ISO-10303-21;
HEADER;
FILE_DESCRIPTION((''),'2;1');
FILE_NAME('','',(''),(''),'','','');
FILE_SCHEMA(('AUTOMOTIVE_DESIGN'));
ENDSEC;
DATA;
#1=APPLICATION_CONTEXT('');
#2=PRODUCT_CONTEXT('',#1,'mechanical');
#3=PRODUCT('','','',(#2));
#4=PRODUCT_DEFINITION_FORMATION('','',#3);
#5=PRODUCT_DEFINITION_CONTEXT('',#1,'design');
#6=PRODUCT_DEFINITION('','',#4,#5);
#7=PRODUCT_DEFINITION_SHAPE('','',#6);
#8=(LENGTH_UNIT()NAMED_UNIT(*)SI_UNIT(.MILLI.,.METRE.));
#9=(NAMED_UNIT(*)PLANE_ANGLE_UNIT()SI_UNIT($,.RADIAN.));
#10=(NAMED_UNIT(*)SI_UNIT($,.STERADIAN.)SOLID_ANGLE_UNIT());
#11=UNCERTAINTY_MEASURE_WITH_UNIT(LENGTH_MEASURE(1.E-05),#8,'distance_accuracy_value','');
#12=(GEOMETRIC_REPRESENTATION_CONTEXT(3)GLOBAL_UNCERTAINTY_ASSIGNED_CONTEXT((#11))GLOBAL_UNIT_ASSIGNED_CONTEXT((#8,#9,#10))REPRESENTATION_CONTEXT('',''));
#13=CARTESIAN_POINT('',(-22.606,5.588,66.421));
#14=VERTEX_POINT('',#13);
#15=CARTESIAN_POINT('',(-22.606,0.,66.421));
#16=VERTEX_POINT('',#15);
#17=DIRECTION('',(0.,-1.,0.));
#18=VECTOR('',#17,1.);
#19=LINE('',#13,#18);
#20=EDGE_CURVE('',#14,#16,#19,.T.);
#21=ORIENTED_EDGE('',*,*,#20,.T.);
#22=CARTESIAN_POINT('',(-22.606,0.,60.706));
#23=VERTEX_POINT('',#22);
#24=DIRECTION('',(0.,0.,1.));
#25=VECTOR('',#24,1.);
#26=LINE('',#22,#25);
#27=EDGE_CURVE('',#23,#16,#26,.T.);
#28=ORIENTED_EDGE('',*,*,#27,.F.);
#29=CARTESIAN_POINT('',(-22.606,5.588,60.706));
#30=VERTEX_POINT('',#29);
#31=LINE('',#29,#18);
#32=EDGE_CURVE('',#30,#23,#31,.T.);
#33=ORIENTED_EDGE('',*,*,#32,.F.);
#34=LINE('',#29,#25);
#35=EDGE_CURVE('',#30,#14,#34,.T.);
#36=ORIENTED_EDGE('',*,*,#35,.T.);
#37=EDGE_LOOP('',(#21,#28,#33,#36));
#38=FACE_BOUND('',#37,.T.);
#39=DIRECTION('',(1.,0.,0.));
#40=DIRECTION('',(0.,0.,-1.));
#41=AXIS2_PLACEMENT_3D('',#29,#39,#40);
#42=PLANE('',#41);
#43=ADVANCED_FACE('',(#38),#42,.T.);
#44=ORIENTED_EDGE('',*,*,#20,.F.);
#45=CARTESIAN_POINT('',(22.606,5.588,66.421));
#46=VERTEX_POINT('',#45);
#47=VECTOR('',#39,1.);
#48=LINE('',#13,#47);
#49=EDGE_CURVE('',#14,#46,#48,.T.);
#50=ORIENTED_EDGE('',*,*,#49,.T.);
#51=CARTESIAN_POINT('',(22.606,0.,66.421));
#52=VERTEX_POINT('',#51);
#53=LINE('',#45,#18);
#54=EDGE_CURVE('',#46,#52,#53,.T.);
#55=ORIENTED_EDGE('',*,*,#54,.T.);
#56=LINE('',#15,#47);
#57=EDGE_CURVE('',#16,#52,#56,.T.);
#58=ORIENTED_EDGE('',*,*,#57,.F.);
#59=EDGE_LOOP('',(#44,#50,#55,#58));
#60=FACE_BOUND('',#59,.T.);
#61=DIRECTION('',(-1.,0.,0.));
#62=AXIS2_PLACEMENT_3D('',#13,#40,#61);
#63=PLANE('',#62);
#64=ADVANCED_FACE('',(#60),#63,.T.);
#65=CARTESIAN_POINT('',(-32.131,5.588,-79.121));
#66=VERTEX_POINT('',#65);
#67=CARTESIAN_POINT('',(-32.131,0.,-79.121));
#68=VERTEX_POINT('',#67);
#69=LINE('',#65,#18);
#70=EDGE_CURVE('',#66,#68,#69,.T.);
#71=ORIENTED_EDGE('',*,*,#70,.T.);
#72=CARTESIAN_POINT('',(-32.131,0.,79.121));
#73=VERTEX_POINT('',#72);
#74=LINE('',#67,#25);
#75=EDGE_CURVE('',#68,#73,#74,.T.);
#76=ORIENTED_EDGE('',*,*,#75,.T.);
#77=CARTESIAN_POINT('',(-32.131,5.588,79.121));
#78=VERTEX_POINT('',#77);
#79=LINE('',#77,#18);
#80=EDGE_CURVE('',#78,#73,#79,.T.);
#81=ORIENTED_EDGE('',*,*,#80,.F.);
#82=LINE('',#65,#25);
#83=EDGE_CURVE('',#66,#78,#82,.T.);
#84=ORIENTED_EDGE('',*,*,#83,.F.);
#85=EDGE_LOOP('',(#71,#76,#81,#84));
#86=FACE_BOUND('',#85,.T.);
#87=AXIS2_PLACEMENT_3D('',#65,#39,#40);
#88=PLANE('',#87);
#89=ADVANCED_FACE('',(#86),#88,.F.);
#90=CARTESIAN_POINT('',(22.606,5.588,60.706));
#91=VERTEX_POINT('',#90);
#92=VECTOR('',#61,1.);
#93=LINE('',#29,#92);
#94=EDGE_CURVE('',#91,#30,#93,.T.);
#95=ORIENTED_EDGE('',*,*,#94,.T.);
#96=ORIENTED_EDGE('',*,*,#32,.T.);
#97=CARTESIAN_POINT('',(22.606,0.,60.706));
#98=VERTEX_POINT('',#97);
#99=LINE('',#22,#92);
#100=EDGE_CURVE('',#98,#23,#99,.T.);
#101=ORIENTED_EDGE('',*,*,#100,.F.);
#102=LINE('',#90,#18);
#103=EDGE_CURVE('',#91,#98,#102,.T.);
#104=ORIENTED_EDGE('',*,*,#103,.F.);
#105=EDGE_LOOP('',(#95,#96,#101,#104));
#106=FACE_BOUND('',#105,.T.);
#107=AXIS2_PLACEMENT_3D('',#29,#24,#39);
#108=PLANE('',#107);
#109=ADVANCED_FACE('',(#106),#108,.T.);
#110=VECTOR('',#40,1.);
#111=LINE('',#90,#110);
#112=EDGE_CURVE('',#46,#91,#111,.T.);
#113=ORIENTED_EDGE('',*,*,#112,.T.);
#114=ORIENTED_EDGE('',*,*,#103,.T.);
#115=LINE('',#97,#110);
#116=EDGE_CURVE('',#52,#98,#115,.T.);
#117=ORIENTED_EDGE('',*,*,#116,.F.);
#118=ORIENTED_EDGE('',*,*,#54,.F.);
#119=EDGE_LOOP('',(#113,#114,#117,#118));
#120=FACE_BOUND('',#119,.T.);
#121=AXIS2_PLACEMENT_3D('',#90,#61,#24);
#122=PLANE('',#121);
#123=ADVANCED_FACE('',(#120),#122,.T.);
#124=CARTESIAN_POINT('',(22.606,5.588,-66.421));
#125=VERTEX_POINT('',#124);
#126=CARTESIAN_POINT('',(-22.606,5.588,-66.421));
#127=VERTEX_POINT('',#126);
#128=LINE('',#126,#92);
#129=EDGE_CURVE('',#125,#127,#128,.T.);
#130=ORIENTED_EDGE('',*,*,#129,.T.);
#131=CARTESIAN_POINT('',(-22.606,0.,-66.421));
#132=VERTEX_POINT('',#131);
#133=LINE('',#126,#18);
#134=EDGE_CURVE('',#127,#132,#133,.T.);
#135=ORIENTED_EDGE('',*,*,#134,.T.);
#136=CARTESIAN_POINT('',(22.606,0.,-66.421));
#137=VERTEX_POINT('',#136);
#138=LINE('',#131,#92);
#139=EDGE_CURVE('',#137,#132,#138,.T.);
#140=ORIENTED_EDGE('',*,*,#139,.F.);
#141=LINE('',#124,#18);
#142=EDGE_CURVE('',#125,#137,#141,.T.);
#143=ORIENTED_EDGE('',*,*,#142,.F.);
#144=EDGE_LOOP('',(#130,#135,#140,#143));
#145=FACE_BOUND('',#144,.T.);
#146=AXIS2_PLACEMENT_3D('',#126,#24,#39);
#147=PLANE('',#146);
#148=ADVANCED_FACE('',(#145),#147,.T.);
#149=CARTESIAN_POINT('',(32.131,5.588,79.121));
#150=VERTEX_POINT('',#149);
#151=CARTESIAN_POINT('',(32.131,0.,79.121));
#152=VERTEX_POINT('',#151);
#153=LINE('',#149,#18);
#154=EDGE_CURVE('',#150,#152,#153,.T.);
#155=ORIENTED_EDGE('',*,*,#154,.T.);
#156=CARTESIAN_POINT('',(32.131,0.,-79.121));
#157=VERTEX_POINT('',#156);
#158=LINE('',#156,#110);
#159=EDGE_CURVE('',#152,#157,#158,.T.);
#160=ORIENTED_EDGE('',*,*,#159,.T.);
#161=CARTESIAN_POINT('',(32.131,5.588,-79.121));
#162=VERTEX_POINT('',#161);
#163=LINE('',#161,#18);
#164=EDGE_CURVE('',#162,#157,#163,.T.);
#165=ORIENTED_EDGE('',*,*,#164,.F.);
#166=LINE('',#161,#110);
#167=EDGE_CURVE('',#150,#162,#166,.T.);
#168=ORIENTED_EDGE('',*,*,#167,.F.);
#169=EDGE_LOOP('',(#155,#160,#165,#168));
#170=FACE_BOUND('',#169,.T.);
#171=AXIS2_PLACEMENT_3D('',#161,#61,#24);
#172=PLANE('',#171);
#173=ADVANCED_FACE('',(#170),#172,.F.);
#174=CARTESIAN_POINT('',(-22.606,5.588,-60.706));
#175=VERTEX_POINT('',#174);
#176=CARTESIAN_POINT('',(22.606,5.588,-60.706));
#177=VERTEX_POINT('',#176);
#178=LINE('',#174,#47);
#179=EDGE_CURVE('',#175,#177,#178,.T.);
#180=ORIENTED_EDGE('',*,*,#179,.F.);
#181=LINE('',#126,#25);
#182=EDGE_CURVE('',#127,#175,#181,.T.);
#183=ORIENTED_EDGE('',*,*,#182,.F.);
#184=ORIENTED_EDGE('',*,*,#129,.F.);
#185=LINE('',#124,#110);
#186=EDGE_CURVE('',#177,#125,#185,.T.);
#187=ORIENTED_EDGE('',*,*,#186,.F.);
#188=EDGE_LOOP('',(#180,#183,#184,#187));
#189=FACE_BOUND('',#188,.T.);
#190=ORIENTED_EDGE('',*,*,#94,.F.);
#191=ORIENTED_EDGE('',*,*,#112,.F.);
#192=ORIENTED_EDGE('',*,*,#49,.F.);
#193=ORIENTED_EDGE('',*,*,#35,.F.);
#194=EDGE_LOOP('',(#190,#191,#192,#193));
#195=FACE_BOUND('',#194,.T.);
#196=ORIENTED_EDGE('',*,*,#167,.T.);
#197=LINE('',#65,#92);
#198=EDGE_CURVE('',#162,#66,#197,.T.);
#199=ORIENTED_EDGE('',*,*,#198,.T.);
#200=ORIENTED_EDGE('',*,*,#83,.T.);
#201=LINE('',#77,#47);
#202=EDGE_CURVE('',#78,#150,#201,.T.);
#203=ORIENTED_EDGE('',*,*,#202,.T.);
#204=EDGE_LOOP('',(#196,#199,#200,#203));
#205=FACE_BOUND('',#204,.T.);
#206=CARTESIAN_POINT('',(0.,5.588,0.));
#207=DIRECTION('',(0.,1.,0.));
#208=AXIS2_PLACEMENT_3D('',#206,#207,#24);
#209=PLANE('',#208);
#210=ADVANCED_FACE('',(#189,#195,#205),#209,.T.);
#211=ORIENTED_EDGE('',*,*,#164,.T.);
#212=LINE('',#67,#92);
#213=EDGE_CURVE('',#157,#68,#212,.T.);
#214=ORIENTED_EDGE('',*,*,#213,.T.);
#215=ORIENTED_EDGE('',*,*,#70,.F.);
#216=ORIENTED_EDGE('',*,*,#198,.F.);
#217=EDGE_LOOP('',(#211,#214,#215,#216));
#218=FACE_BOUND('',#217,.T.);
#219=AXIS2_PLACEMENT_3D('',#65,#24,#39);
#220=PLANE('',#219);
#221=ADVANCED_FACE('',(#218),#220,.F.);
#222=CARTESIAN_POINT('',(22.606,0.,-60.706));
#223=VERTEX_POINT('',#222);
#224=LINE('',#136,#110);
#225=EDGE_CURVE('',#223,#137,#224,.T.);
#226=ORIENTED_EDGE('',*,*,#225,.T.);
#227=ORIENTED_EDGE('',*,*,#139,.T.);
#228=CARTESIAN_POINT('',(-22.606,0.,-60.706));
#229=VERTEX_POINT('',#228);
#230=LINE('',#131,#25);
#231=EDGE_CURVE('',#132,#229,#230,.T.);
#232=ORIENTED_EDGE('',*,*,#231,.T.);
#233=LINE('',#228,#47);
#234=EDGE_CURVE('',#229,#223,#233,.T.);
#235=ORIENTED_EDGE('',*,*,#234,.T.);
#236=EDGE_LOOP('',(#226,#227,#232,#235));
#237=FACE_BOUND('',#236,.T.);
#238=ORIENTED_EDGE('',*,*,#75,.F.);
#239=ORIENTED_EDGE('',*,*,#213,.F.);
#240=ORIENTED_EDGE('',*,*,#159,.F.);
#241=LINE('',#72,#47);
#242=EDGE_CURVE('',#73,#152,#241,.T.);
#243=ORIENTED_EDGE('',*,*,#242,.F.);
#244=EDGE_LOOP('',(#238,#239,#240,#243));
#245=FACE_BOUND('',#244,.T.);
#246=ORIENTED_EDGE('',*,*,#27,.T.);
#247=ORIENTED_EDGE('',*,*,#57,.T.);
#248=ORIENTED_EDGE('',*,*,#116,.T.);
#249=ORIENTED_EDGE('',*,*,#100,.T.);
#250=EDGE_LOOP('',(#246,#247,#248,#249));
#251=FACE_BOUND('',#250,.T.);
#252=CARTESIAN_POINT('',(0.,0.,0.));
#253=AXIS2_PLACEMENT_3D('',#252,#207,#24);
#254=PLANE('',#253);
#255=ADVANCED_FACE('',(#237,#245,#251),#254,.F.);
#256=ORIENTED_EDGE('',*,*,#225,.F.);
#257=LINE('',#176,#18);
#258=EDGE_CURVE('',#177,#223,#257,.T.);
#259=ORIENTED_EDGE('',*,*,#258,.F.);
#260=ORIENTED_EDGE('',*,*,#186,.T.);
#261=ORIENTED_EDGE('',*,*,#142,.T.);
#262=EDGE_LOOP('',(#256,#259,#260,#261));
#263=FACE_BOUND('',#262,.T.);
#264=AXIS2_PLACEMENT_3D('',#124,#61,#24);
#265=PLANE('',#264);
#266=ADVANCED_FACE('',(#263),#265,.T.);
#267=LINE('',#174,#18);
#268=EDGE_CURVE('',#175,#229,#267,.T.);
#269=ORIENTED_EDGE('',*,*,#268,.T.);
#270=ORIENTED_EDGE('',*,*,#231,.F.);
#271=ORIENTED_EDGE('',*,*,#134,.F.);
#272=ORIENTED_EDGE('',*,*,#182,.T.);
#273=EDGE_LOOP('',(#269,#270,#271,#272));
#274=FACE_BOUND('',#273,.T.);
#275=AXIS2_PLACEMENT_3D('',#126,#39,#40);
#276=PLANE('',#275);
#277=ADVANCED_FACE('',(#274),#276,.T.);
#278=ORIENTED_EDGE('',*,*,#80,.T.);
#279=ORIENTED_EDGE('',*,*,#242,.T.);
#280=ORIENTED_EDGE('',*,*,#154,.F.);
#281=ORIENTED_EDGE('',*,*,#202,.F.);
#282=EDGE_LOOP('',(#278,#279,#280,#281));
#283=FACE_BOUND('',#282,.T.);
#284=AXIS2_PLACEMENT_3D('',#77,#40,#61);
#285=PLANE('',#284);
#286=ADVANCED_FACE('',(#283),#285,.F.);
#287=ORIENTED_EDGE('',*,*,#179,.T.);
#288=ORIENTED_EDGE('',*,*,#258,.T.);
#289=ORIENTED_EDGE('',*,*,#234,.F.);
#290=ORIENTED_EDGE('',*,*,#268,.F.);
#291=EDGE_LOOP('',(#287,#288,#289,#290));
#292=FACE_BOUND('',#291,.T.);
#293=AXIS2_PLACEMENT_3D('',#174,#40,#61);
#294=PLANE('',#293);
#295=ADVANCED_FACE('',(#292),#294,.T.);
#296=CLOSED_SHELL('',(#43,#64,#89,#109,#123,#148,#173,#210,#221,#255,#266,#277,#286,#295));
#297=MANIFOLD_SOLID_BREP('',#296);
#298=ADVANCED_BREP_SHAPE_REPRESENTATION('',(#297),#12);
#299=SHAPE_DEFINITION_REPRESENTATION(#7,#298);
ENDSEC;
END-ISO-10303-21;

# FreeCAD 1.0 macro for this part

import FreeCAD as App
import Part
import Sketcher
Q = App.Units.Quantity


def add_polygon(sketch, points):
    """Adds a closed chain of lines whose ends are joined by coincident constraints."""
    first, n = sketch.GeometryCount, len(points)
    for a, b in zip(points, points[1:] + points[:1]):
        sketch.addGeometry(Part.LineSegment(App.Vector(*a, 0), App.Vector(*b, 0)), False)
    for i in range(n):
        sketch.addConstraint(Sketcher.Constraint("Coincident", first + i, 2, first + (i + 1) % n, 1))

doc = App.newDocument("Part")
params = doc.addObject("Spreadsheet::Sheet", "Params")
for row, (alias, value) in enumerate([
    ("sketch1_width", "2.53 in"),
    ("sketch1_width2", "1.78 in"),
    ("sketch1_height", "6.23 in"),
    ("sketch1_height2", "0.225 in"),
    ("pad1_length", "0.22 in"),
], start=1):
    params.set(f"A{row}", alias)
    params.set(f"B{row}", "=" + value)
    params.setAlias(f"B{row}", alias)

body = doc.addObject("PartDesign::Body", "Body")

# Sketch on XZ plane
sketch1 = doc.addObject("Sketcher::SketchObject", "Sketch")
body.addObject(sketch1)
sketch1.AttachmentSupport = (doc.XZ_Plane, [""])
sketch1.MapMode = "FlatFace"
add_polygon(sketch1, [(-32, -79), (-32, 79), (32, 79), (32, -79)])  # lines 0-3
add_polygon(sketch1, [(23, 66), (-23, 66), (-23, 61), (23, 61)])  # lines 4-7
add_polygon(sketch1, [(23, -61), (-23, -61), (-23, -66), (23, -66)])  # lines 8-11
sketch1.addConstraint(Sketcher.Constraint("Vertical", 0))
sketch1.addConstraint(Sketcher.Constraint("Horizontal", 1))
sketch1.addConstraint(Sketcher.Constraint("Vertical", 2))
sketch1.addConstraint(Sketcher.Constraint("Horizontal", 3))
sketch1.addConstraint(Sketcher.Constraint("Horizontal", 4))
sketch1.addConstraint(Sketcher.Constraint("Vertical", 5))
sketch1.addConstraint(Sketcher.Constraint("Horizontal", 6))
sketch1.addConstraint(Sketcher.Constraint("Vertical", 7))
sketch1.addConstraint(Sketcher.Constraint("Horizontal", 8))
sketch1.addConstraint(Sketcher.Constraint("Vertical", 9))
sketch1.addConstraint(Sketcher.Constraint("Horizontal", 10))
sketch1.addConstraint(Sketcher.Constraint("Vertical", 11))
sketch1.addConstraint(Sketcher.Constraint("Symmetric", 0, 2, 2, 2, -1, 1))
sketch1.addConstraint(Sketcher.Constraint("Symmetric", 6, 2, 8, 2, -1, 1))
sketch1.addConstraint(Sketcher.Constraint("Symmetric", 4, 2, 10, 2, -1, 1))
sketch1.addConstraint(Sketcher.Constraint("Vertical", 5, 2, 8, 2))
sketch1.addConstraint(Sketcher.Constraint("DistanceX", 1, 1, 1, 2, Q("2.53 in")))
sketch1.addConstraint(Sketcher.Constraint("DistanceX", 4, 2, 4, 1, Q("1.78 in")))
sketch1.addConstraint(Sketcher.Constraint("DistanceY", 0, 1, 0, 2, Q("6.23 in")))
sketch1.addConstraint(Sketcher.Constraint("DistanceY", 4, 2, 0, 2, Q("0.5 in")))
sketch1.addConstraint(Sketcher.Constraint("DistanceY", 5, 2, 5, 1, Q("0.225 in")))
sketch1.setExpression("Constraints[28]", "Params.sketch1_width")
sketch1.setExpression("Constraints[29]", "Params.sketch1_width2")
sketch1.setExpression("Constraints[30]", "Params.sketch1_height")
sketch1.setExpression("Constraints[32]", "Params.sketch1_height2")
pad1 = doc.addObject("PartDesign::Pad", "Pad")
body.addObject(pad1)
pad1.Profile = sketch1
pad1.setExpression("Length", "Params.pad1_length")
pad1.Reversed = True

doc.recompute()
